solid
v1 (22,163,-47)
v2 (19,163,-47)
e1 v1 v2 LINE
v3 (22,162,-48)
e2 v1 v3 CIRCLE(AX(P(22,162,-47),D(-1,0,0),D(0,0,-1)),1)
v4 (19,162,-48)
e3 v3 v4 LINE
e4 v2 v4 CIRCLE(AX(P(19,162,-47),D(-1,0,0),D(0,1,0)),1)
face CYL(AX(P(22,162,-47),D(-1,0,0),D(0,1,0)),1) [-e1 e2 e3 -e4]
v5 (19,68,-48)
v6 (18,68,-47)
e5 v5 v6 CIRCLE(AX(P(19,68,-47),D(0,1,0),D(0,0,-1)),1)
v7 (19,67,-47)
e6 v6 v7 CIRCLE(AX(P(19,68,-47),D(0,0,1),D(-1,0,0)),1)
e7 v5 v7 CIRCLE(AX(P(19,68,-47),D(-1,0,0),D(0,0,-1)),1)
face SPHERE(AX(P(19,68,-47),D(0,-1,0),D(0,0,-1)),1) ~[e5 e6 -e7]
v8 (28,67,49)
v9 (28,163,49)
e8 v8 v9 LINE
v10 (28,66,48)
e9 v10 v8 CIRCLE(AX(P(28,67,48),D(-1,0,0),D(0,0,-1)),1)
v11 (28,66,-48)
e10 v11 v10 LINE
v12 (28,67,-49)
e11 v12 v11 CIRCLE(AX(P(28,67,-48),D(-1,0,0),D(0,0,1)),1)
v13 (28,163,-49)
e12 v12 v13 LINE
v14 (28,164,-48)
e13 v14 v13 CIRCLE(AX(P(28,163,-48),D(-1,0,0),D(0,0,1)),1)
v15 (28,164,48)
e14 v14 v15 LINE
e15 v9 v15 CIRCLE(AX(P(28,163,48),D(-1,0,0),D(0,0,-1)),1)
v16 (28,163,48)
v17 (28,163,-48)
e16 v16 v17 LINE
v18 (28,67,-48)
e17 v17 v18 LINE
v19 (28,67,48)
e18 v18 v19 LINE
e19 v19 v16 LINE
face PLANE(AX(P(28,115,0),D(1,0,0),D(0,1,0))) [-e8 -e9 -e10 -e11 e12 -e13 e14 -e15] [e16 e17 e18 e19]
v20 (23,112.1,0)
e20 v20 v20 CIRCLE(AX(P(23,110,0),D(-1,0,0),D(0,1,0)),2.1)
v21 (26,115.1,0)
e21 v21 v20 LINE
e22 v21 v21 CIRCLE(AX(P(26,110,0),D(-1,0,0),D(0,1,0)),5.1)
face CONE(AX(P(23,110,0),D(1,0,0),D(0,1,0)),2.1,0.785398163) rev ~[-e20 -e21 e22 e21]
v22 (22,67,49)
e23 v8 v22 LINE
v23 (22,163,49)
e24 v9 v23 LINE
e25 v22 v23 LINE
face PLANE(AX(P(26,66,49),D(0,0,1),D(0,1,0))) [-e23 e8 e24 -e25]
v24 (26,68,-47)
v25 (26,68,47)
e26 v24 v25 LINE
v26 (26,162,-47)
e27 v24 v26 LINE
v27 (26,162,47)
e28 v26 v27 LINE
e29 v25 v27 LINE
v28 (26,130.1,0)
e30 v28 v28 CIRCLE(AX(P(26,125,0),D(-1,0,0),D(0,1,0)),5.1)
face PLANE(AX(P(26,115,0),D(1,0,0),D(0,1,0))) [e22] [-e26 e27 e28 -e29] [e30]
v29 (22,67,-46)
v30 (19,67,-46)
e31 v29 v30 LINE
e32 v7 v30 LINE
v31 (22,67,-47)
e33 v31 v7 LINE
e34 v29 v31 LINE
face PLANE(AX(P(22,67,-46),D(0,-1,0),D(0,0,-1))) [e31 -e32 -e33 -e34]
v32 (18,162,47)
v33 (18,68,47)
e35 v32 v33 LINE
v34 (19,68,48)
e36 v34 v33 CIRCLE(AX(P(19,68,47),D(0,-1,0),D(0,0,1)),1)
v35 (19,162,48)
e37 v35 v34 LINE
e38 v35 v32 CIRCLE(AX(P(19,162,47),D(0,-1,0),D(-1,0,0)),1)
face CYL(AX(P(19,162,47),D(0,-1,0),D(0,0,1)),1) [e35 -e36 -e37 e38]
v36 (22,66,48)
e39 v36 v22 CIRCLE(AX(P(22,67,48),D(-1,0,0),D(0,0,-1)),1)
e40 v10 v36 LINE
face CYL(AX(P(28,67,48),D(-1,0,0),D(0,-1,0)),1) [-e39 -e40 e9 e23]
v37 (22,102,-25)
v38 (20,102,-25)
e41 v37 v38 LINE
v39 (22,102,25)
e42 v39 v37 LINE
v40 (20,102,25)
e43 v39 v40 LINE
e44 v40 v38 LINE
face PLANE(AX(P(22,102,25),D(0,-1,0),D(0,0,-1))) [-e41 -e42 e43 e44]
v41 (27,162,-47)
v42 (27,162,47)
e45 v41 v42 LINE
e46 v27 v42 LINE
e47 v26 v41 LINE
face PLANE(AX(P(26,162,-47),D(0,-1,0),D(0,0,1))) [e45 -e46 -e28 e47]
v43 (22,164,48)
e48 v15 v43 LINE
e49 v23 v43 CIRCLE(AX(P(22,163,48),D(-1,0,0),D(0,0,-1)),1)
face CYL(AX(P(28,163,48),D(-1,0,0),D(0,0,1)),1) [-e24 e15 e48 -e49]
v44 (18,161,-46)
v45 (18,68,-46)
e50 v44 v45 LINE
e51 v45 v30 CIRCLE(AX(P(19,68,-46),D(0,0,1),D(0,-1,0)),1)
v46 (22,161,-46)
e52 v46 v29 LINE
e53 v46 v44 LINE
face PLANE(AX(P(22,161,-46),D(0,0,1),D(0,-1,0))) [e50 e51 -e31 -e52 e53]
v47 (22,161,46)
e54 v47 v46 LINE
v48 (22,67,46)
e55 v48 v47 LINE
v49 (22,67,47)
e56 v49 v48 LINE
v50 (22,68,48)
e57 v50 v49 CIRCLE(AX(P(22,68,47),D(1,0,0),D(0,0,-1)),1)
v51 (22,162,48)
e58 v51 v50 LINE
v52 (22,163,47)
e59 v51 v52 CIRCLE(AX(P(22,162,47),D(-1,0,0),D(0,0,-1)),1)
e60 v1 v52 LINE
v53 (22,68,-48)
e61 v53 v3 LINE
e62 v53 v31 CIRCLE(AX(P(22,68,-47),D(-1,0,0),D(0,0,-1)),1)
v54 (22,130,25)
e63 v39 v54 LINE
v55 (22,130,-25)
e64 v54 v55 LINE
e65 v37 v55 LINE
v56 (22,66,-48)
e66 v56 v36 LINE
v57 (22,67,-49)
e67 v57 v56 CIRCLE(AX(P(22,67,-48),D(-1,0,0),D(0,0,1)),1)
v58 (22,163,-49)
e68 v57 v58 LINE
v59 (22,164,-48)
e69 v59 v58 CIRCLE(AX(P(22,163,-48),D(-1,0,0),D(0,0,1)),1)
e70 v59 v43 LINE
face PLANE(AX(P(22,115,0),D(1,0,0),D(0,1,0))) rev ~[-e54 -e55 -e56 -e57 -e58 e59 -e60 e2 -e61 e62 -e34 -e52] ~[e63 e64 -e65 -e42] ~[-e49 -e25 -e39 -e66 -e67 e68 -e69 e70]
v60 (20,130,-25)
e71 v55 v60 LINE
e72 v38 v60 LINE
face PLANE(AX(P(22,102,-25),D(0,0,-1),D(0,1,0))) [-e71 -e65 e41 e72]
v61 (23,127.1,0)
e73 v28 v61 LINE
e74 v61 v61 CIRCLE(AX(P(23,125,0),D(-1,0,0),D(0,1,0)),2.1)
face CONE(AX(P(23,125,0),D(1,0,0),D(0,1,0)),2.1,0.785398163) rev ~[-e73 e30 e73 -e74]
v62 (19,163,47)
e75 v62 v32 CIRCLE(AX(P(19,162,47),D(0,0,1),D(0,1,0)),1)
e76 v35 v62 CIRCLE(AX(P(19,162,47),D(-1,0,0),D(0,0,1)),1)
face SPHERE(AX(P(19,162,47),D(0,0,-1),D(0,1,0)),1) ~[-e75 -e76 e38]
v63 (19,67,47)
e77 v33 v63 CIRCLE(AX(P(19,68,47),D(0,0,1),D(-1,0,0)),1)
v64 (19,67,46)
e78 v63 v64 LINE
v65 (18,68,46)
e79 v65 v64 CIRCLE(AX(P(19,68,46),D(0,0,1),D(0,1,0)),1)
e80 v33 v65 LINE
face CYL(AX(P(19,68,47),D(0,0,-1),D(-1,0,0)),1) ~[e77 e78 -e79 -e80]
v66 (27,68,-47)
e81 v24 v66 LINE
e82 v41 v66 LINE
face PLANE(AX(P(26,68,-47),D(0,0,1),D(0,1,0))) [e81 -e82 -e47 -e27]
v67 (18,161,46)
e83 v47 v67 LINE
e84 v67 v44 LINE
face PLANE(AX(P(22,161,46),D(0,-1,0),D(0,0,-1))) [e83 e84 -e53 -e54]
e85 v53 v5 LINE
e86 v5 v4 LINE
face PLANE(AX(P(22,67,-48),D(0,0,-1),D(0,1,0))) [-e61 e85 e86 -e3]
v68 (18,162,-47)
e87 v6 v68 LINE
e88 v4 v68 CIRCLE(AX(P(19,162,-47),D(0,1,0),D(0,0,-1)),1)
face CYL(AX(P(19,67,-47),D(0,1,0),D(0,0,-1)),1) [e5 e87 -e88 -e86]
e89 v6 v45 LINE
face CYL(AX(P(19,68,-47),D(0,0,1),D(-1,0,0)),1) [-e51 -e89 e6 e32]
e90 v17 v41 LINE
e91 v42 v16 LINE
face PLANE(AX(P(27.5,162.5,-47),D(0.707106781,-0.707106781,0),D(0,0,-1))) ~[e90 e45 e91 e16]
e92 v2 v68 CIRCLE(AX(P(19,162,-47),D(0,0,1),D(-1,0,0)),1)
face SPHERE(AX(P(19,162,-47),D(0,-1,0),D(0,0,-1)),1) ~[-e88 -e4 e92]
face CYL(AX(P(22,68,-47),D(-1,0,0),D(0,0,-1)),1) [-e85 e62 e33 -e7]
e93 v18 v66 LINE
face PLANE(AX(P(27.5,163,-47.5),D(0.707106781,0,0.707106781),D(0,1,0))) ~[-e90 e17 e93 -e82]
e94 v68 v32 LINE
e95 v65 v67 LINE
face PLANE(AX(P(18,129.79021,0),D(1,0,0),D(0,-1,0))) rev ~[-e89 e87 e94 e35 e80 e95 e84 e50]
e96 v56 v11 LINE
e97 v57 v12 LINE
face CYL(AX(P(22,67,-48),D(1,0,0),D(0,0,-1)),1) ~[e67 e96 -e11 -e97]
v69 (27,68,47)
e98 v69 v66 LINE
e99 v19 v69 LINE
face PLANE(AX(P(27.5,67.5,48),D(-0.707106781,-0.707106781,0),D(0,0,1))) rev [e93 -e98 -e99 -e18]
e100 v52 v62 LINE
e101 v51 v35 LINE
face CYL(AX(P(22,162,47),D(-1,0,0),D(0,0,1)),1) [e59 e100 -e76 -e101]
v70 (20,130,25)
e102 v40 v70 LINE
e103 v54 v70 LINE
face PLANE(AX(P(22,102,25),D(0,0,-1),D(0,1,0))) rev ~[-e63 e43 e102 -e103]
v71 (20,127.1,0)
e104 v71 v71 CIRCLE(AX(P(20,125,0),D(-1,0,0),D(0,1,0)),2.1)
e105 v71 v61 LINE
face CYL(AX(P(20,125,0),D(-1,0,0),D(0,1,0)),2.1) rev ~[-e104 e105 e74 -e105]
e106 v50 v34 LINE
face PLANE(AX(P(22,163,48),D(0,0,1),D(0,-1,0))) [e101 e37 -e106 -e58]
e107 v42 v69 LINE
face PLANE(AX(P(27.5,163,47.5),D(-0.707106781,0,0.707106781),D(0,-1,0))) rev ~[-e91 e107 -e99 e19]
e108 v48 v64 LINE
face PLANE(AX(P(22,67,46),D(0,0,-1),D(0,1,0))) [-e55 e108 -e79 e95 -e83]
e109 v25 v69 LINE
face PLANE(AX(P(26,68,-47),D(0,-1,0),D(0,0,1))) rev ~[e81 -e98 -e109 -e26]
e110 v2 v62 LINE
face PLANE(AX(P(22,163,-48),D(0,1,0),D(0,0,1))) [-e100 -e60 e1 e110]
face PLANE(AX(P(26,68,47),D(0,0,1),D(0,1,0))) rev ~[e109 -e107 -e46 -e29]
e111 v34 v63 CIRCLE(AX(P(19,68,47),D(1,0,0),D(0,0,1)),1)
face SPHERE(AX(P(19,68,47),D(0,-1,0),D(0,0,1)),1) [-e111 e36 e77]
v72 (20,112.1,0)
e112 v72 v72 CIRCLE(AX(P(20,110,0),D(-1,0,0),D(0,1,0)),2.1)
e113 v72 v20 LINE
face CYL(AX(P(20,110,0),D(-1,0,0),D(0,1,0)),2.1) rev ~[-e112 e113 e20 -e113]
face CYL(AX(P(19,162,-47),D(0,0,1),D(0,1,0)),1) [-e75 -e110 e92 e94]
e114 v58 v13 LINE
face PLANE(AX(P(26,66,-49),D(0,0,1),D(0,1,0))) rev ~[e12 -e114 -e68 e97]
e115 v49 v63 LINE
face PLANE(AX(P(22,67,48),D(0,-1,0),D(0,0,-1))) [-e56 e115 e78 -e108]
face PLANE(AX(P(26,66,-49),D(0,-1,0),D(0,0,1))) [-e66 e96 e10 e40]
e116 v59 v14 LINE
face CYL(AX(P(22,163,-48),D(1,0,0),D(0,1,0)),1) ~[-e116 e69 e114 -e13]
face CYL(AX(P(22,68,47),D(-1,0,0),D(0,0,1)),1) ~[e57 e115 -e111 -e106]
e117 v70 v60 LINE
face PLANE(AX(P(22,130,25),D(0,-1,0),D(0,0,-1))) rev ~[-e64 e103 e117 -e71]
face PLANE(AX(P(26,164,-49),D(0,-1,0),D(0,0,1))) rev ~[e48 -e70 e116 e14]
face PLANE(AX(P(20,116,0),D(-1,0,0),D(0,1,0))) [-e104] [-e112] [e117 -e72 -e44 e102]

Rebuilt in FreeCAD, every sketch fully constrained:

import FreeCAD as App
import Part
import Sketcher
from FreeCAD import Vector


def edges_at(feature, points):
    """Names of the edges that pass closest to the given points."""
    edges = feature.Shape.Edges
    near = lambda p: min(range(len(edges)), key=lambda i: edges[i].distToShape(Part.Vertex(*p))[0])
    return sorted({f"Edge{near(p) + 1}" for p in points})


def add_polygon(sketch, points):
    """Adds a closed chain of lines whose ends are joined by coincident constraints."""
    first, n = sketch.GeometryCount, len(points)
    for a, b in zip(points, points[1:] + points[:1]):
        sketch.addGeometry(Part.LineSegment(App.Vector(*a, 0), App.Vector(*b, 0)), False)
    for i in range(n):
        sketch.addConstraint(Sketcher.Constraint("Coincident", first + i, 2, first + (i + 1) % n, 1))

doc = App.newDocument("Part")
body = doc.addObject("PartDesign::Body", "Body")

# Sketch on YZ plane
sketch1 = body.newObject("Sketcher::SketchObject", "Sketch")
sketch1.AttachmentSupport = (doc.getObject("YZ_Plane"), [""])
sketch1.MapMode = "FlatFace"
sketch1.AttachmentOffset = App.Placement(Vector(0, 0, 22), App.Rotation())
add_polygon(sketch1, [(66, 49), (66, -49), (164, -49), (164, 49)])  # lines 0-3
sketch1.addConstraint([
    Sketcher.Constraint("Vertical", 0),
    Sketcher.Constraint("Horizontal", 1),
    Sketcher.Constraint("Vertical", 2),
    Sketcher.Constraint("Horizontal", 3),
    Sketcher.Constraint("Equal", 3, 0),
    Sketcher.Constraint("DistanceX", 1, 1, 1, 2, 98.0),
    Sketcher.Constraint("DistanceX", -1, 1, 0, 2, 66.0),
    Sketcher.Constraint("DistanceY", 0, 2, -1, 1, 49.0),
])
pad1 = body.newObject("PartDesign::Pad", "Pad")
pad1.Profile = sketch1
pad1.Length = 4

# Sketch on YZ plane
sketch2 = body.newObject("Sketcher::SketchObject", "Sketch001")
sketch2.AttachmentSupport = (doc.getObject("YZ_Plane"), [""])
sketch2.MapMode = "FlatFace"
sketch2.AttachmentOffset = App.Placement(Vector(0, 0, 22), App.Rotation())
add_polygon(sketch2, [(102, -25), (102, 25), (130, 25), (130, -25)])  # lines 0-3
sketch2.addConstraint([
    Sketcher.Constraint("Vertical", 0),
    Sketcher.Constraint("Horizontal", 1),
    Sketcher.Constraint("Vertical", 2),
    Sketcher.Constraint("Horizontal", 3),
    Sketcher.Constraint("DistanceX", 1, 1, 1, 2, 28.0),
    Sketcher.Constraint("DistanceY", 0, 1, 0, 2, 50.0),
    Sketcher.Constraint("DistanceX", -1, 1, 0, 2, 102.0),
    Sketcher.Constraint("DistanceY", -1, 1, 0, 2, 25.0),
])
pad2 = body.newObject("PartDesign::Pad", "Pad001")
pad2.Profile = sketch2
pad2.Length = 2
pad2.Reversed = True

# Sketch on YZ plane
sketch3 = body.newObject("Sketcher::SketchObject", "Sketch002")
sketch3.AttachmentSupport = (doc.getObject("YZ_Plane"), [""])
sketch3.MapMode = "FlatFace"
sketch3.AttachmentOffset = App.Placement(Vector(0, 0, 20), App.Rotation())
sketch3.addGeometry([
    Part.Circle(Vector(125, 0, 0), Vector(0, 0, 1), 2.1),
    Part.Circle(Vector(110, 0, 0), Vector(0, 0, 1), 2.1),
], False)
sketch3.addConstraint([
    Sketcher.Constraint("Equal", 0, 1),
    Sketcher.Constraint("PointOnObject", 0, 3, -1),
    Sketcher.Constraint("PointOnObject", 1, 3, -1),
    Sketcher.Constraint("Diameter", 0, 4.2),
    Sketcher.Constraint("DistanceX", -1, 1, 0, 3, 125.0),
    Sketcher.Constraint("DistanceX", -1, 1, 1, 3, 110.0),
])
pocket1 = body.newObject("PartDesign::Pocket", "Pocket")
pocket1.Profile = sketch3
pocket1.Length = 6
pocket1.Reversed = True

# Sketch on YZ plane
sketch4 = body.newObject("Sketcher::SketchObject", "Sketch003")
sketch4.AttachmentSupport = (doc.getObject("YZ_Plane"), [""])
sketch4.MapMode = "FlatFace"
sketch4.AttachmentOffset = App.Placement(Vector(0, 0, 22), App.Rotation())
add_polygon(sketch4, [(163, 48), (163, -48), (67, -48), (67, -46), (161, -46), (161, 46), (67, 46), (67, 48)])  # lines 0-7
sketch4.addConstraint([
    Sketcher.Constraint("Vertical", 0),
    Sketcher.Constraint("Horizontal", 1),
    Sketcher.Constraint("Vertical", 2),
    Sketcher.Constraint("Horizontal", 3),
    Sketcher.Constraint("Vertical", 4),
    Sketcher.Constraint("Horizontal", 5),
    Sketcher.Constraint("Vertical", 6),
    Sketcher.Constraint("Horizontal", 7),
    Sketcher.Constraint("Symmetric", 2, 2, 5, 2, -1),
    Sketcher.Constraint("Equal", 7, 0),
    Sketcher.Constraint("Equal", 2, 6),
    Sketcher.Constraint("DistanceX", 1, 2, 1, 1, 96.0),
    Sketcher.Constraint("DistanceX", 3, 1, 3, 2, 94.0),
    Sketcher.Constraint("DistanceY", 2, 1, 2, 2, 2.0),
    Sketcher.Constraint("DistanceX", -1, 1, 0, 2, 163.0),
])
pad3 = body.newObject("PartDesign::Pad", "Pad002")
pad3.Profile = sketch4
pad3.Length = 4
pad3.Reversed = True

# Sketch on YZ plane
sketch5 = body.newObject("Sketcher::SketchObject", "Sketch004")
sketch5.AttachmentSupport = (doc.getObject("YZ_Plane"), [""])
sketch5.MapMode = "FlatFace"
sketch5.AttachmentOffset = App.Placement(Vector(0, 0, 26), App.Rotation())
add_polygon(sketch5, [(66, 49), (66, -49), (164, -49), (164, 49)])  # lines 0-3
add_polygon(sketch5, [(162, -47), (68, -47), (68, 47), (162, 47)])  # lines 4-7
sketch5.addConstraint([
    Sketcher.Constraint("Vertical", 0),
    Sketcher.Constraint("Horizontal", 1),
    Sketcher.Constraint("Vertical", 2),
    Sketcher.Constraint("Horizontal", 3),
    Sketcher.Constraint("Horizontal", 4),
    Sketcher.Constraint("Vertical", 5),
    Sketcher.Constraint("Horizontal", 6),
    Sketcher.Constraint("Vertical", 7),
    Sketcher.Constraint("Equal", 3, 0),
    Sketcher.Constraint("Equal", 6, 5),
    Sketcher.Constraint("DistanceX", 1, 1, 1, 2, 98.0),
    Sketcher.Constraint("DistanceX", 4, 2, 4, 1, 94.0),
    Sketcher.Constraint("DistanceX", -1, 1, 0, 2, 66.0),
    Sketcher.Constraint("DistanceY", 0, 2, -1, 1, 49.0),
    Sketcher.Constraint("DistanceX", -1, 1, 4, 2, 68.0),
    Sketcher.Constraint("DistanceY", 4, 2, -1, 1, 47.0),
])
pad4 = body.newObject("PartDesign::Pad", "Pad003")
pad4.Profile = sketch5
pad4.Length = 2
doc.recompute()

chamfer = body.newObject("PartDesign::Chamfer", "Chamfer")
chamfer.Base = (pad4, edges_at(pad4, [(26, 107.9, 0)]))
chamfer.Size = 3
doc.recompute()

chamfer2 = body.newObject("PartDesign::Chamfer", "Chamfer001")
chamfer2.Base = (chamfer, edges_at(chamfer, [(26, 122.9, 0)]))
chamfer2.Size = 3
doc.recompute()

chamfer3 = body.newObject("PartDesign::Chamfer", "Chamfer002")
chamfer3.Base = (chamfer2, edges_at(chamfer2, [(28, 162, 0)]))
chamfer3.Size = 1
doc.recompute()

chamfer4 = body.newObject("PartDesign::Chamfer", "Chamfer003")
chamfer4.Base = (chamfer3, edges_at(chamfer3, [(28, 115.5, 47)]))
chamfer4.Size = 1
doc.recompute()

chamfer5 = body.newObject("PartDesign::Chamfer", "Chamfer004")
chamfer5.Base = (chamfer4, edges_at(chamfer4, [(28, 68, 0.5)]))
chamfer5.Size = 1
doc.recompute()

chamfer6 = body.newObject("PartDesign::Chamfer", "Chamfer005")
chamfer6.Base = (chamfer5, edges_at(chamfer5, [(28, 115, -47)]))
chamfer6.Size = 1
doc.recompute()

fillet = body.newObject("PartDesign::Fillet", "Fillet")
fillet.Base = (chamfer6, edges_at(chamfer6, [(25, 164, -49)]))
fillet.Radius = 1
doc.recompute()

fillet2 = body.newObject("PartDesign::Fillet", "Fillet001")
fillet2.Base = (fillet, edges_at(fillet, [(25, 66, -49)]))
fillet2.Radius = 1
doc.recompute()

fillet3 = body.newObject("PartDesign::Fillet", "Fillet002")
fillet3.Base = (fillet2, edges_at(fillet2, [(25, 66, 49)]))
fillet3.Radius = 1
doc.recompute()

fillet4 = body.newObject("PartDesign::Fillet", "Fillet003")
fillet4.Base = (fillet3, edges_at(fillet3, [(25, 164, 49)]))
fillet4.Radius = 1
doc.recompute()

fillet5 = body.newObject("PartDesign::Fillet", "Fillet004")
fillet5.Base = (fillet4, edges_at(fillet4, [(18, 115, -48)]))
fillet5.Radius = 1
doc.recompute()

fillet6 = body.newObject("PartDesign::Fillet", "Fillet005")
fillet6.Base = (fillet5, edges_at(fillet5, [(18, 163, 0.5)]))
fillet6.Radius = 1
doc.recompute()

fillet7 = body.newObject("PartDesign::Fillet", "Fillet006")
fillet7.Base = (fillet6, edges_at(fillet6, [(18, 114.5, 48)]))
fillet7.Radius = 1
doc.recompute()

fillet8 = body.newObject("PartDesign::Fillet", "Fillet007")
fillet8.Base = (fillet7, edges_at(fillet7, [(20.5, 67, -48)]))
fillet8.Radius = 1
doc.recompute()

fillet9 = body.newObject("PartDesign::Fillet", "Fillet008")
fillet9.Base = (fillet8, edges_at(fillet8, [(20.5, 67, 48)]))
fillet9.Radius = 1

doc.recompute()
